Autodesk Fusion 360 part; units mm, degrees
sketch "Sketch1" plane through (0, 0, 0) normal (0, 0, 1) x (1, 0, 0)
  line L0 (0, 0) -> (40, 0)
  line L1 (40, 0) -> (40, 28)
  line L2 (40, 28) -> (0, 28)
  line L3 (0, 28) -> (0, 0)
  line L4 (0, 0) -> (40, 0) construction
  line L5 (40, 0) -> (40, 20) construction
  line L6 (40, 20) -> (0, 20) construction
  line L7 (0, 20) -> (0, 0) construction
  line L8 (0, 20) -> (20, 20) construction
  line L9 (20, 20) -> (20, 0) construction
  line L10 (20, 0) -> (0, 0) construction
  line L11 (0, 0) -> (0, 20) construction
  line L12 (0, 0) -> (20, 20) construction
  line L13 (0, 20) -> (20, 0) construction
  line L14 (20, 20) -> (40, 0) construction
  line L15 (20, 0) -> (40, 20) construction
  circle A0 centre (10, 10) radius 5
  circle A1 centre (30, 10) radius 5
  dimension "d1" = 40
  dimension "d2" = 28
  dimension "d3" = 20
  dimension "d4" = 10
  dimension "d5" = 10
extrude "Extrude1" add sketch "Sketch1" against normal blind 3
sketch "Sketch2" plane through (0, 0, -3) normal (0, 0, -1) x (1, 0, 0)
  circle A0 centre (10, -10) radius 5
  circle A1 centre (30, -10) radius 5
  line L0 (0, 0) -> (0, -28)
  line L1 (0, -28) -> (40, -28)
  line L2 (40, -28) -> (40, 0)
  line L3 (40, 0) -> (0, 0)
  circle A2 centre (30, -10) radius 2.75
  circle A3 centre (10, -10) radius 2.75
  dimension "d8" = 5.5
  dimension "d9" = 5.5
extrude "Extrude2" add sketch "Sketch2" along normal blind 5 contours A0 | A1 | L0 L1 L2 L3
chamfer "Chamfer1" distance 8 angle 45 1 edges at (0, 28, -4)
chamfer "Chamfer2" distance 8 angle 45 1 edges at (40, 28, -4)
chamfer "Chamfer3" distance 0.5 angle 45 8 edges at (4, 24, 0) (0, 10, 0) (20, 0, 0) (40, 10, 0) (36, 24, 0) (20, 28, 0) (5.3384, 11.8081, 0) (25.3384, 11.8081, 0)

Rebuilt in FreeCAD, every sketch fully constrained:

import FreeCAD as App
import Part
import Sketcher
Q = App.Units.Quantity


def edges_at(feature, points):
    """Names of the edges that pass closest to the given points."""
    edges = feature.Shape.Edges
    near = lambda p: min(range(len(edges)), key=lambda i: edges[i].distToShape(Part.Vertex(*p))[0])
    return sorted({f"Edge{near(p) + 1}" for p in points})

doc = App.newDocument("Part")
body = doc.addObject("PartDesign::Body", "Body")

# Sketch on XY plane
sketch1 = body.newObject("Sketcher::SketchObject", "Sketch")
sketch1.AttachmentSupport = (doc.getObject("XY_Plane"), [""])
sketch1.MapMode = "FlatFace"
sketch1.addGeometry([
    Part.LineSegment(App.Vector(0, 28, 0), App.Vector(0, 0, 0)),  # 0
    Part.LineSegment(App.Vector(0, 0, 0), App.Vector(40, 0, 0)),  # 1
    Part.LineSegment(App.Vector(40, 0, 0), App.Vector(40, 28, 0)),  # 2
    Part.LineSegment(App.Vector(40, 28, 0), App.Vector(0, 28, 0)),  # 3
    Part.Circle(App.Vector(10, 10, 0), App.Vector(0, 0, 1), 5),  # 4
    Part.Circle(App.Vector(30, 10, 0), App.Vector(0, 0, 1), 5),  # 5
], False)
sketch1.addConstraint([
    Sketcher.Constraint("Coincident", 0, 2, 1, 1),
    Sketcher.Constraint("Coincident", 1, 2, 2, 1),
    Sketcher.Constraint("Coincident", 2, 2, 3, 1),
    Sketcher.Constraint("Coincident", 3, 2, 0, 1),
    Sketcher.Constraint("Vertical", 0),
    Sketcher.Constraint("Horizontal", 1),
    Sketcher.Constraint("Vertical", 2),
    Sketcher.Constraint("Horizontal", 3),
    Sketcher.Constraint("Coincident", 0, 2, -1, 1),
    Sketcher.Constraint("Equal", 4, 5),
    Sketcher.Constraint("Horizontal", 4, 3, 5, 3),
    Sketcher.Constraint("Diameter", 4, Q("10 mm")),
    Sketcher.Constraint("DistanceX", 1, 1, 1, 2, Q("40 mm")),
    Sketcher.Constraint("DistanceY", 0, 2, 0, 1, Q("28 mm")),
    Sketcher.Constraint("DistanceX", -1, 1, 4, 3, Q("10 mm")),
    Sketcher.Constraint("DistanceY", -1, 1, 4, 3, Q("10 mm")),
    Sketcher.Constraint("DistanceX", 4, 3, 5, 3, Q("20 mm")),
])
pad1 = body.newObject("PartDesign::Pad", "Pad")
pad1.Profile = sketch1
pad1.Length = 3
pad1.Reversed = True

# Sketch on XY plane
sketch2 = body.newObject("Sketcher::SketchObject", "Sketch001")
sketch2.AttachmentSupport = (doc.getObject("XY_Plane"), [""])
sketch2.MapMode = "FlatFace"
sketch2.AttachmentOffset = App.Placement(App.Vector(0, 0, -3), App.Rotation())
sketch2.addGeometry([
    Part.LineSegment(App.Vector(40, 0, 0), App.Vector(0, 0, 0)),  # 0
    Part.LineSegment(App.Vector(0, 0, 0), App.Vector(0, 28, 0)),  # 1
    Part.LineSegment(App.Vector(0, 28, 0), App.Vector(40, 28, 0)),  # 2
    Part.LineSegment(App.Vector(40, 28, 0), App.Vector(40, 0, 0)),  # 3
    Part.Circle(App.Vector(10, 10, 0), App.Vector(0, 0, 1), 2.8),  # 4
    Part.Circle(App.Vector(30, 10, 0), App.Vector(0, 0, 1), 2.8),  # 5
], False)
sketch2.addConstraint([
    Sketcher.Constraint("Coincident", 0, 2, 1, 1),
    Sketcher.Constraint("Coincident", 1, 2, 2, 1),
    Sketcher.Constraint("Coincident", 2, 2, 3, 1),
    Sketcher.Constraint("Coincident", 3, 2, 0, 1),
    Sketcher.Constraint("Horizontal", 0),
    Sketcher.Constraint("Vertical", 1),
    Sketcher.Constraint("Horizontal", 2),
    Sketcher.Constraint("Vertical", 3),
    Sketcher.Constraint("Coincident", 0, 2, -1, 1),
    Sketcher.Constraint("Equal", 4, 5),
    Sketcher.Constraint("Horizontal", 4, 3, 5, 3),
    Sketcher.Constraint("Diameter", 4, Q("5.5 mm")),
    Sketcher.Constraint("DistanceX", 0, 2, 0, 1, Q("40 mm")),
    Sketcher.Constraint("DistanceY", 1, 1, 1, 2, Q("28 mm")),
    Sketcher.Constraint("DistanceX", -1, 1, 4, 3, Q("10 mm")),
    Sketcher.Constraint("DistanceY", -1, 1, 4, 3, Q("10 mm")),
    Sketcher.Constraint("DistanceX", -1, 1, 5, 3, Q("30 mm")),
])
pad2 = body.newObject("PartDesign::Pad", "Pad001")
pad2.Profile = sketch2
pad2.Length = 5
pad2.Reversed = True
doc.recompute()

chamfer = body.newObject("PartDesign::Chamfer", "Chamfer")
chamfer.Base = (pad2, edges_at(pad2, [(0, 28, -4)]))
chamfer.Size = 8
doc.recompute()

chamfer2 = body.newObject("PartDesign::Chamfer", "Chamfer001")
chamfer2.Base = (chamfer, edges_at(chamfer, [(40, 28, -4)]))
chamfer2.Size = 8
doc.recompute()

chamfer3 = body.newObject("PartDesign::Chamfer", "Chamfer002")
chamfer3.Base = (chamfer2, edges_at(chamfer2, [
    (4, 24, 0),
    (0, 10, 0),
    (20, 0, 0),
    (40, 10, 0),
    (36, 24, 0),
    (20, 28, 0),
    (5.338, 11.808, 0),
    (25.338, 11.808, 0),
]))
chamfer3.Size = 0.5

doc.recompute()
